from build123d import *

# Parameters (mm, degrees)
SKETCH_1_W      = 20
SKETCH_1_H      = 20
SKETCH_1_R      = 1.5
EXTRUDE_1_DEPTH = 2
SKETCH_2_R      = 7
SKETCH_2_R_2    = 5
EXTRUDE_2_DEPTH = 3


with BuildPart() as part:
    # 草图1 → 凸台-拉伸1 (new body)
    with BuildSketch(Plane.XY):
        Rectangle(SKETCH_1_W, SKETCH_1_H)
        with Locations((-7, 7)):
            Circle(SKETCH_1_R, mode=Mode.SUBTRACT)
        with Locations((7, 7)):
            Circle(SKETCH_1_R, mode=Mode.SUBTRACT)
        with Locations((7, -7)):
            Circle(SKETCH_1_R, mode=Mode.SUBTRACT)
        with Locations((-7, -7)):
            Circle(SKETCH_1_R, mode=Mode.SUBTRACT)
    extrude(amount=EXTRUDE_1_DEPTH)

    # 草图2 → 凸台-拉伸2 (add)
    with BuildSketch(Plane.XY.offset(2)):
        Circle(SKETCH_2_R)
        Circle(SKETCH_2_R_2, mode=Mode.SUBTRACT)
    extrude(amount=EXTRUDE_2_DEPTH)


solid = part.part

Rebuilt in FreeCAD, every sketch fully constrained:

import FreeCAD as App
import Part
import Sketcher

V = App.Vector

doc = App.newDocument("Part")
body = doc.addObject("PartDesign::Body", "Body")

# Sketch on XY plane
sketch1 = body.newObject("Sketcher::SketchObject", "Sketch")
sketch1.AttachmentSupport = (doc.getObject("XY_Plane"), [""])
sketch1.MapMode = "FlatFace"
sketch1.addGeometry([
    Part.LineSegment(V(-10, 10, 0), V(-10, -10, 0)),  # 0
    Part.LineSegment(V(-10, -10, 0), V(10, -10, 0)),  # 1
    Part.LineSegment(V(10, -10, 0), V(10, 10, 0)),  # 2
    Part.LineSegment(V(10, 10, 0), V(-10, 10, 0)),  # 3
    Part.Circle(V(-7, -7, 0), V(0, 0, 1), 1.5),  # 4
    Part.Circle(V(7, -7, 0), V(0, 0, 1), 1.5),  # 5
    Part.Circle(V(-7, 7, 0), V(0, 0, 1), 1.5),  # 6
    Part.Circle(V(7, 7, 0), V(0, 0, 1), 1.5),  # 7
], False)
sketch1.addConstraint([
    Sketcher.Constraint("Coincident", 0, 2, 1, 1),
    Sketcher.Constraint("Coincident", 1, 2, 2, 1),
    Sketcher.Constraint("Coincident", 2, 2, 3, 1),
    Sketcher.Constraint("Coincident", 3, 2, 0, 1),
    Sketcher.Constraint("Vertical", 0),
    Sketcher.Constraint("Horizontal", 1),
    Sketcher.Constraint("Vertical", 2),
    Sketcher.Constraint("Horizontal", 3),
    Sketcher.Constraint("Equal", 4, 5),
    Sketcher.Constraint("Equal", 5, 6),
    Sketcher.Constraint("Equal", 6, 7),
    Sketcher.Constraint("Symmetric", 5, 3, 6, 3, -1, 1),
    Sketcher.Constraint("Symmetric", 4, 3, 7, 3, -1, 1),
    Sketcher.Constraint("Symmetric", 0, 2, 2, 2, -1, 1),
    Sketcher.Constraint("Symmetric", 4, 3, 5, 3, -2),
    Sketcher.Constraint("Equal", 3, 0),
    Sketcher.Constraint("Diameter", 4, 3.0),
    Sketcher.Constraint("DistanceX", 1, 1, 1, 2, 20.0),
    Sketcher.Constraint("DistanceX", 4, 3, -1, 1, 7.0),
    Sketcher.Constraint("DistanceY", 4, 3, -1, 1, 7.0),
])
pad1 = body.newObject("PartDesign::Pad", "Pad")
pad1.Profile = sketch1
pad1.Length = 2

# Sketch on XY plane
sketch2 = body.newObject("Sketcher::SketchObject", "Sketch001")
sketch2.AttachmentSupport = (doc.getObject("XY_Plane"), [""])
sketch2.MapMode = "FlatFace"
sketch2.AttachmentOffset = App.Placement(V(0, 0, 2), App.Rotation())
sketch2.addGeometry([
    Part.Circle(V(0, 0, 0), V(0, 0, 1), 7),
    Part.Circle(V(0, 0, 0), V(0, 0, 1), 5),
], False)
sketch2.addConstraint([
    Sketcher.Constraint("Coincident", 0, 3, -1, 1),
    Sketcher.Constraint("Coincident", 1, 3, -1, 1),
    Sketcher.Constraint("Diameter", 0, 14.0),
    Sketcher.Constraint("Diameter", 1, 10.0),
])
pad2 = body.newObject("PartDesign::Pad", "Pad001")
pad2.Profile = sketch2
pad2.Length = 3

doc.recompute()
